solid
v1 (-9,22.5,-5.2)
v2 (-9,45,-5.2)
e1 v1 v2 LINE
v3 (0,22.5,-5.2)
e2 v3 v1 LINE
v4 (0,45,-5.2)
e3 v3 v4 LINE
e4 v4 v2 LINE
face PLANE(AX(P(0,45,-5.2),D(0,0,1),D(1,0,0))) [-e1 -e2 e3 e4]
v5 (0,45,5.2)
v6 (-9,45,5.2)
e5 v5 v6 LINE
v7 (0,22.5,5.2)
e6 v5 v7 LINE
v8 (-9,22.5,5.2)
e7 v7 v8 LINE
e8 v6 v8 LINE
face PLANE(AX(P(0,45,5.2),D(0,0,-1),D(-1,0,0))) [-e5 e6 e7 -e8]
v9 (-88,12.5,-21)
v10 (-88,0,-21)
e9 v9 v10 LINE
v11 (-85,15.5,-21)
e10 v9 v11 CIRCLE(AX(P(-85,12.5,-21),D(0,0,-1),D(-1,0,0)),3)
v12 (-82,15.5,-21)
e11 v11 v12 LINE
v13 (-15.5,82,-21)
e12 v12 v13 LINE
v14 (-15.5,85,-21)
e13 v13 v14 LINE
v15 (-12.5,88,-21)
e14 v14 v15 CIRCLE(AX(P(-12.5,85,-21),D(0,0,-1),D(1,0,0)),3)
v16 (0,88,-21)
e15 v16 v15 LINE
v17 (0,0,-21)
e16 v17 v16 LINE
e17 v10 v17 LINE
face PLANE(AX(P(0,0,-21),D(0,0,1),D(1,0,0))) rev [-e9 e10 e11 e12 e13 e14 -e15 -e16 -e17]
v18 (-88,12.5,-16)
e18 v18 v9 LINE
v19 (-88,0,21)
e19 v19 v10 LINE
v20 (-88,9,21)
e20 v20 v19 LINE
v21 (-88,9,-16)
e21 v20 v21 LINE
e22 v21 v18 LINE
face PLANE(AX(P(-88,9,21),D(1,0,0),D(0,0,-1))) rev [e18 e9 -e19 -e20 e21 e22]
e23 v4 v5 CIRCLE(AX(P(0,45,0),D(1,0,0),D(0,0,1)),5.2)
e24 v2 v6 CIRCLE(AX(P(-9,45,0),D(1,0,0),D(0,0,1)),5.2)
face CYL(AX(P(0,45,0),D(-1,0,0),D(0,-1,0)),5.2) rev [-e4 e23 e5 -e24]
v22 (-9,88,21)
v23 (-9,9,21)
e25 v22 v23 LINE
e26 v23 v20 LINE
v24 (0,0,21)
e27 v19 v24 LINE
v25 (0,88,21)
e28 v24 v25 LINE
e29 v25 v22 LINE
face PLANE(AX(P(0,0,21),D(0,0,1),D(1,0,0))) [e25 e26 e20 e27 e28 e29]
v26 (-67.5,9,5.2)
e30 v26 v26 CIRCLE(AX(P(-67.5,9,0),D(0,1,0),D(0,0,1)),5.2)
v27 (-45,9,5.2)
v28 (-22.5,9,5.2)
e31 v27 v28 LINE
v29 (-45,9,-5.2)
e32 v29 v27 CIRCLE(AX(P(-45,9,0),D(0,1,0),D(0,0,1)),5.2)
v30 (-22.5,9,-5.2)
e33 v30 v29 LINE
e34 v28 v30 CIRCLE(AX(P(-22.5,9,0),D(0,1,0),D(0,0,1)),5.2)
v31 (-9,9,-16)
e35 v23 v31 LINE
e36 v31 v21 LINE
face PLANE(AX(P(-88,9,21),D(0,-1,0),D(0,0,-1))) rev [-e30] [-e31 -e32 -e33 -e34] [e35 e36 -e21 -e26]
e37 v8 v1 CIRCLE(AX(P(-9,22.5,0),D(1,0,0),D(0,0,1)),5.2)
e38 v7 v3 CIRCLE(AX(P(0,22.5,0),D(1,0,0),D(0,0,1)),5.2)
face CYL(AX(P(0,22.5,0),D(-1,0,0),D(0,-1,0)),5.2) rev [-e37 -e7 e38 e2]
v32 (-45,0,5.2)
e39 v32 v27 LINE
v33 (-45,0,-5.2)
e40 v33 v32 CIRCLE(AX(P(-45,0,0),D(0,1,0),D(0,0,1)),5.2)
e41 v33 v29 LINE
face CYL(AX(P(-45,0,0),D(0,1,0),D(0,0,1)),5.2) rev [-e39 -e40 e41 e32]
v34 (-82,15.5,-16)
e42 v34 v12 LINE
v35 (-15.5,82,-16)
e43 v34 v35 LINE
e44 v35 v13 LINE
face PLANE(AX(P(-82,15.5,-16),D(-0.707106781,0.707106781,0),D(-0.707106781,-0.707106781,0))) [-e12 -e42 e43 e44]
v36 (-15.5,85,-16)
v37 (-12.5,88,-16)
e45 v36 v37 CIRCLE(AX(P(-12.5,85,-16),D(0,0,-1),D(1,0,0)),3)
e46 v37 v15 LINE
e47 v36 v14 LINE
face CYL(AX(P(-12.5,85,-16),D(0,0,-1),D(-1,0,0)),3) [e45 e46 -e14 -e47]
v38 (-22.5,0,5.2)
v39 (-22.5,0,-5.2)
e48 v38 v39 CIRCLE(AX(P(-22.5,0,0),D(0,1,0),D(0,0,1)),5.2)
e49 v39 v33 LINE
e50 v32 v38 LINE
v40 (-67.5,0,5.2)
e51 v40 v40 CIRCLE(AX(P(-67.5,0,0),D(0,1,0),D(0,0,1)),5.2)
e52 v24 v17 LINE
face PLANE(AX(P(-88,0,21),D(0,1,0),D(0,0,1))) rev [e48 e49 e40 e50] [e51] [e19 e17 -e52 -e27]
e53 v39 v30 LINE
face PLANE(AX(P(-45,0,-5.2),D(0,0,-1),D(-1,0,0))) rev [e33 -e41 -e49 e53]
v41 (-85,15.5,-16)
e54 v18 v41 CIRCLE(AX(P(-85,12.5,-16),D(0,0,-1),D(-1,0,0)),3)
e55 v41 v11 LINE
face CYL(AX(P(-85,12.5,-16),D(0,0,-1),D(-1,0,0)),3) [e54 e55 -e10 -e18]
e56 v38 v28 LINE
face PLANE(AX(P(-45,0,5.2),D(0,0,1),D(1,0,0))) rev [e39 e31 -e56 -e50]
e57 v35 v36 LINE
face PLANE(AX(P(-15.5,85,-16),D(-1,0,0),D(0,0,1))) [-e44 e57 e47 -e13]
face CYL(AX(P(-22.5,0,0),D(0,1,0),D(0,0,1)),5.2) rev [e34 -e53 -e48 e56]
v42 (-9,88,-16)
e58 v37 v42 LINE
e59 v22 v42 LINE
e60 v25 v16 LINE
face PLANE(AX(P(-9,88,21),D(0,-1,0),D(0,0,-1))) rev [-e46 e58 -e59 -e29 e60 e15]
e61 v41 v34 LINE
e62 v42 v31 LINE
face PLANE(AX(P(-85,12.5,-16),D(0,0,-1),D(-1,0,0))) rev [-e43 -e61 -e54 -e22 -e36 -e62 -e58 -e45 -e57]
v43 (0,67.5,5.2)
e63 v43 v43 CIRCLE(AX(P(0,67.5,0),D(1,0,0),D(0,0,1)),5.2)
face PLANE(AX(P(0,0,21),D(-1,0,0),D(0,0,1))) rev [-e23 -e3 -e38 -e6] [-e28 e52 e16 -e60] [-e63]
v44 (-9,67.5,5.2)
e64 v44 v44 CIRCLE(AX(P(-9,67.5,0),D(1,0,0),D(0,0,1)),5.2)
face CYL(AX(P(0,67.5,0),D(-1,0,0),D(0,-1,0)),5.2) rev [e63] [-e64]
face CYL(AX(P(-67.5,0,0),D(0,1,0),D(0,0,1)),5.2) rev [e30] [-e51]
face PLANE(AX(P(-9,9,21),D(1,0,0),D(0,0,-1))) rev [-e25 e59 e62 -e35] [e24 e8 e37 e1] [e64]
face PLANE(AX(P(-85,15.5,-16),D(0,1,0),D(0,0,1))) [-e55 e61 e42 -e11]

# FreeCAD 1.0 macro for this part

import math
import FreeCAD as App
import Part
import Sketcher


def add_polygon(sketch, points):
    """Adds a closed chain of lines whose ends are joined by coincident constraints."""
    first, n = sketch.GeometryCount, len(points)
    for a, b in zip(points, points[1:] + points[:1]):
        sketch.addGeometry(Part.LineSegment(App.Vector(*a, 0), App.Vector(*b, 0)), False)
    for i in range(n):
        sketch.addConstraint(Sketcher.Constraint("Coincident", first + i, 2, first + (i + 1) % n, 1))

doc = App.newDocument("Part")
body = doc.addObject("PartDesign::Body", "Body")

# Sketch on XY plane
sketch1 = doc.addObject("Sketcher::SketchObject", "Sketch")
body.addObject(sketch1)
sketch1.AttachmentSupport = (doc.XY_Plane, [""])
sketch1.MapMode = "FlatFace"
add_polygon(sketch1, [(-88, 0), (0, 0), (0, 88), (-9, 88), (-9, 9), (-88, 9)])  # lines 0-5
sketch1.addConstraint([
    Sketcher.Constraint("Horizontal", 0),
    Sketcher.Constraint("Vertical", 1),
    Sketcher.Constraint("Horizontal", 2),
    Sketcher.Constraint("Vertical", 3),
    Sketcher.Constraint("Horizontal", 4),
    Sketcher.Constraint("Vertical", 5),
    Sketcher.Constraint("Coincident", 0, 2, -1, 1),
    Sketcher.Constraint("Equal", 0, 1),
    Sketcher.Constraint("Equal", 4, 3),
    Sketcher.Constraint("DistanceX", 0, 1, 0, 2, 88.0),
    Sketcher.Constraint("DistanceX", 2, 2, 2, 1, 9.0),
])
pad1 = doc.addObject("PartDesign::Pad", "Pad")
body.addObject(pad1)
pad1.Profile = sketch1
pad1.Length = 42
pad1.Midplane = True

# Sketch on XY plane
sketch2 = doc.addObject("Sketcher::SketchObject", "Sketch001")
body.addObject(sketch2)
sketch2.AttachmentSupport = (doc.XY_Plane, [""])
sketch2.MapMode = "FlatFace"
sketch2.AttachmentOffset = App.Placement(App.Vector(0, 0, -21), App.Rotation())
sketch2.addGeometry([
    Part.LineSegment(App.Vector(-88, 9, 0), App.Vector(-88, 12.5, 0)),  # 0
    Part.ArcOfCircle(Part.Circle(App.Vector(-85, 12.5, 0), App.Vector(0, 0, 1), 3), math.radians(90), math.radians(180)),  # 1
    Part.LineSegment(App.Vector(-85, 15.5, 0), App.Vector(-82, 15.5, 0)),  # 2
    Part.LineSegment(App.Vector(-82, 15.5, 0), App.Vector(-15.5, 82, 0)),  # 3
    Part.LineSegment(App.Vector(-15.5, 82, 0), App.Vector(-15.5, 85, 0)),  # 4
    Part.ArcOfCircle(Part.Circle(App.Vector(-12.5, 85, 0), App.Vector(0, 0, 1), 3), math.radians(90), math.radians(180)),  # 5
    Part.LineSegment(App.Vector(-12.5, 88, 0), App.Vector(-9, 88, 0)),  # 6
    Part.LineSegment(App.Vector(-9, 88, 0), App.Vector(-9, 9, 0)),  # 7
    Part.LineSegment(App.Vector(-9, 9, 0), App.Vector(-88, 9, 0)),  # 8
], False)
sketch2.addConstraint([
    Sketcher.Constraint("Tangent", 0, 2, 1, 2),
    Sketcher.Constraint("Tangent", 1, 1, 2, 1),
    Sketcher.Constraint("Coincident", 2, 2, 3, 1),
    Sketcher.Constraint("Coincident", 3, 2, 4, 1),
    Sketcher.Constraint("Tangent", 4, 2, 5, 2),
    Sketcher.Constraint("Tangent", 5, 1, 6, 1),
    Sketcher.Constraint("Coincident", 6, 2, 7, 1),
    Sketcher.Constraint("Coincident", 7, 2, 8, 1),
    Sketcher.Constraint("Coincident", 8, 2, 0, 1),
    Sketcher.Constraint("Vertical", 0),
    Sketcher.Constraint("Horizontal", 2),
    Sketcher.Constraint("Vertical", 4),
    Sketcher.Constraint("Horizontal", 6),
    Sketcher.Constraint("Vertical", 7),
    Sketcher.Constraint("Horizontal", 8),
    Sketcher.Constraint("Equal", 1, 5),
    Sketcher.Constraint("Equal", 6, 0),
    Sketcher.Constraint("Equal", 2, 4),
    Sketcher.Constraint("Equal", 8, 7),
    Sketcher.Constraint("Radius", 1, 3.0),
    Sketcher.Constraint("DistanceX", 2, 1, 2, 2, 3.0),
    Sketcher.Constraint("DistanceX", 8, 2, 8, 1, 79.0),
    Sketcher.Constraint("DistanceX", 6, 1, 6, 2, 3.5),
    Sketcher.Constraint("DistanceX", 1, 3, -1, 1, 85.0),
    Sketcher.Constraint("DistanceY", -1, 1, 5, 3, 85.0),
])
pad2 = doc.addObject("PartDesign::Pad", "Pad001")
body.addObject(pad2)
pad2.Profile = sketch2
pad2.Length = 5

# Sketch on XZ plane
sketch3 = doc.addObject("Sketcher::SketchObject", "Sketch002")
body.addObject(sketch3)
sketch3.AttachmentSupport = (doc.XZ_Plane, [""])
sketch3.MapMode = "FlatFace"
sketch3.AttachmentOffset = App.Placement(App.Vector(0, 0, -9), App.Rotation())
sketch3.addGeometry([
    Part.Circle(App.Vector(-67.5, 0, 0), App.Vector(0, 0, 1), 5.2),  # 0
    Part.LineSegment(App.Vector(-22.5, -5.2, 0), App.Vector(-45, -5.2, 0)),  # 1
    Part.ArcOfCircle(Part.Circle(App.Vector(-45, 0, 0), App.Vector(0, 0, 1), 5.2), math.radians(90), math.radians(270)),  # 2
    Part.LineSegment(App.Vector(-45, 5.2, 0), App.Vector(-22.5, 5.2, 0)),  # 3
    Part.ArcOfCircle(Part.Circle(App.Vector(-22.5, 0, 0), App.Vector(0, 0, 1), 5.2), math.radians(-90), math.radians(90)),  # 4
], False)
sketch3.addConstraint([
    Sketcher.Constraint("Tangent", 1, 2, 2, 2),
    Sketcher.Constraint("Tangent", 2, 1, 3, 1),
    Sketcher.Constraint("Tangent", 3, 2, 4, 2),
    Sketcher.Constraint("Tangent", 4, 1, 1, 1),
    Sketcher.Constraint("Horizontal", 1),
    Sketcher.Constraint("Horizontal", 3),
    Sketcher.Constraint("Equal", 0, 2),
    Sketcher.Constraint("PointOnObject", 0, 3, -1),
    Sketcher.Constraint("PointOnObject", 2, 3, -1),
    Sketcher.Constraint("Diameter", 0, 10.4),
    Sketcher.Constraint("DistanceX", 1, 2, 1, 1, 22.5),
    Sketcher.Constraint("DistanceX", 2, 3, -1, 1, 45.0),
    Sketcher.Constraint("DistanceX", 0, 3, 4, 3, 45.0),
])
pocket1 = doc.addObject("PartDesign::Pocket", "Pocket")
body.addObject(pocket1)
pocket1.Profile = sketch3
pocket1.Type = "ThroughAll"
pocket1.Reversed = True
doc.recompute()

datumplane = doc.addObject("PartDesign::Plane", "DatumPlane")
body.addObject(datumplane)
datumplane.Placement = App.Placement(App.Vector(0, 0, 0), App.Rotation(App.Vector(-0.707106781, 0.707106781, 0), App.Vector(0, 0, -1), App.Vector(-0.707106781, -0.707106781, 0), "ZXY"))
mirrored = doc.addObject("PartDesign::Mirrored", "Mirrored")
body.addObject(mirrored)
mirrored.Originals = [pocket1]
mirrored.MirrorPlane = (datumplane, [""])
body.Tip = mirrored

doc.recompute()
